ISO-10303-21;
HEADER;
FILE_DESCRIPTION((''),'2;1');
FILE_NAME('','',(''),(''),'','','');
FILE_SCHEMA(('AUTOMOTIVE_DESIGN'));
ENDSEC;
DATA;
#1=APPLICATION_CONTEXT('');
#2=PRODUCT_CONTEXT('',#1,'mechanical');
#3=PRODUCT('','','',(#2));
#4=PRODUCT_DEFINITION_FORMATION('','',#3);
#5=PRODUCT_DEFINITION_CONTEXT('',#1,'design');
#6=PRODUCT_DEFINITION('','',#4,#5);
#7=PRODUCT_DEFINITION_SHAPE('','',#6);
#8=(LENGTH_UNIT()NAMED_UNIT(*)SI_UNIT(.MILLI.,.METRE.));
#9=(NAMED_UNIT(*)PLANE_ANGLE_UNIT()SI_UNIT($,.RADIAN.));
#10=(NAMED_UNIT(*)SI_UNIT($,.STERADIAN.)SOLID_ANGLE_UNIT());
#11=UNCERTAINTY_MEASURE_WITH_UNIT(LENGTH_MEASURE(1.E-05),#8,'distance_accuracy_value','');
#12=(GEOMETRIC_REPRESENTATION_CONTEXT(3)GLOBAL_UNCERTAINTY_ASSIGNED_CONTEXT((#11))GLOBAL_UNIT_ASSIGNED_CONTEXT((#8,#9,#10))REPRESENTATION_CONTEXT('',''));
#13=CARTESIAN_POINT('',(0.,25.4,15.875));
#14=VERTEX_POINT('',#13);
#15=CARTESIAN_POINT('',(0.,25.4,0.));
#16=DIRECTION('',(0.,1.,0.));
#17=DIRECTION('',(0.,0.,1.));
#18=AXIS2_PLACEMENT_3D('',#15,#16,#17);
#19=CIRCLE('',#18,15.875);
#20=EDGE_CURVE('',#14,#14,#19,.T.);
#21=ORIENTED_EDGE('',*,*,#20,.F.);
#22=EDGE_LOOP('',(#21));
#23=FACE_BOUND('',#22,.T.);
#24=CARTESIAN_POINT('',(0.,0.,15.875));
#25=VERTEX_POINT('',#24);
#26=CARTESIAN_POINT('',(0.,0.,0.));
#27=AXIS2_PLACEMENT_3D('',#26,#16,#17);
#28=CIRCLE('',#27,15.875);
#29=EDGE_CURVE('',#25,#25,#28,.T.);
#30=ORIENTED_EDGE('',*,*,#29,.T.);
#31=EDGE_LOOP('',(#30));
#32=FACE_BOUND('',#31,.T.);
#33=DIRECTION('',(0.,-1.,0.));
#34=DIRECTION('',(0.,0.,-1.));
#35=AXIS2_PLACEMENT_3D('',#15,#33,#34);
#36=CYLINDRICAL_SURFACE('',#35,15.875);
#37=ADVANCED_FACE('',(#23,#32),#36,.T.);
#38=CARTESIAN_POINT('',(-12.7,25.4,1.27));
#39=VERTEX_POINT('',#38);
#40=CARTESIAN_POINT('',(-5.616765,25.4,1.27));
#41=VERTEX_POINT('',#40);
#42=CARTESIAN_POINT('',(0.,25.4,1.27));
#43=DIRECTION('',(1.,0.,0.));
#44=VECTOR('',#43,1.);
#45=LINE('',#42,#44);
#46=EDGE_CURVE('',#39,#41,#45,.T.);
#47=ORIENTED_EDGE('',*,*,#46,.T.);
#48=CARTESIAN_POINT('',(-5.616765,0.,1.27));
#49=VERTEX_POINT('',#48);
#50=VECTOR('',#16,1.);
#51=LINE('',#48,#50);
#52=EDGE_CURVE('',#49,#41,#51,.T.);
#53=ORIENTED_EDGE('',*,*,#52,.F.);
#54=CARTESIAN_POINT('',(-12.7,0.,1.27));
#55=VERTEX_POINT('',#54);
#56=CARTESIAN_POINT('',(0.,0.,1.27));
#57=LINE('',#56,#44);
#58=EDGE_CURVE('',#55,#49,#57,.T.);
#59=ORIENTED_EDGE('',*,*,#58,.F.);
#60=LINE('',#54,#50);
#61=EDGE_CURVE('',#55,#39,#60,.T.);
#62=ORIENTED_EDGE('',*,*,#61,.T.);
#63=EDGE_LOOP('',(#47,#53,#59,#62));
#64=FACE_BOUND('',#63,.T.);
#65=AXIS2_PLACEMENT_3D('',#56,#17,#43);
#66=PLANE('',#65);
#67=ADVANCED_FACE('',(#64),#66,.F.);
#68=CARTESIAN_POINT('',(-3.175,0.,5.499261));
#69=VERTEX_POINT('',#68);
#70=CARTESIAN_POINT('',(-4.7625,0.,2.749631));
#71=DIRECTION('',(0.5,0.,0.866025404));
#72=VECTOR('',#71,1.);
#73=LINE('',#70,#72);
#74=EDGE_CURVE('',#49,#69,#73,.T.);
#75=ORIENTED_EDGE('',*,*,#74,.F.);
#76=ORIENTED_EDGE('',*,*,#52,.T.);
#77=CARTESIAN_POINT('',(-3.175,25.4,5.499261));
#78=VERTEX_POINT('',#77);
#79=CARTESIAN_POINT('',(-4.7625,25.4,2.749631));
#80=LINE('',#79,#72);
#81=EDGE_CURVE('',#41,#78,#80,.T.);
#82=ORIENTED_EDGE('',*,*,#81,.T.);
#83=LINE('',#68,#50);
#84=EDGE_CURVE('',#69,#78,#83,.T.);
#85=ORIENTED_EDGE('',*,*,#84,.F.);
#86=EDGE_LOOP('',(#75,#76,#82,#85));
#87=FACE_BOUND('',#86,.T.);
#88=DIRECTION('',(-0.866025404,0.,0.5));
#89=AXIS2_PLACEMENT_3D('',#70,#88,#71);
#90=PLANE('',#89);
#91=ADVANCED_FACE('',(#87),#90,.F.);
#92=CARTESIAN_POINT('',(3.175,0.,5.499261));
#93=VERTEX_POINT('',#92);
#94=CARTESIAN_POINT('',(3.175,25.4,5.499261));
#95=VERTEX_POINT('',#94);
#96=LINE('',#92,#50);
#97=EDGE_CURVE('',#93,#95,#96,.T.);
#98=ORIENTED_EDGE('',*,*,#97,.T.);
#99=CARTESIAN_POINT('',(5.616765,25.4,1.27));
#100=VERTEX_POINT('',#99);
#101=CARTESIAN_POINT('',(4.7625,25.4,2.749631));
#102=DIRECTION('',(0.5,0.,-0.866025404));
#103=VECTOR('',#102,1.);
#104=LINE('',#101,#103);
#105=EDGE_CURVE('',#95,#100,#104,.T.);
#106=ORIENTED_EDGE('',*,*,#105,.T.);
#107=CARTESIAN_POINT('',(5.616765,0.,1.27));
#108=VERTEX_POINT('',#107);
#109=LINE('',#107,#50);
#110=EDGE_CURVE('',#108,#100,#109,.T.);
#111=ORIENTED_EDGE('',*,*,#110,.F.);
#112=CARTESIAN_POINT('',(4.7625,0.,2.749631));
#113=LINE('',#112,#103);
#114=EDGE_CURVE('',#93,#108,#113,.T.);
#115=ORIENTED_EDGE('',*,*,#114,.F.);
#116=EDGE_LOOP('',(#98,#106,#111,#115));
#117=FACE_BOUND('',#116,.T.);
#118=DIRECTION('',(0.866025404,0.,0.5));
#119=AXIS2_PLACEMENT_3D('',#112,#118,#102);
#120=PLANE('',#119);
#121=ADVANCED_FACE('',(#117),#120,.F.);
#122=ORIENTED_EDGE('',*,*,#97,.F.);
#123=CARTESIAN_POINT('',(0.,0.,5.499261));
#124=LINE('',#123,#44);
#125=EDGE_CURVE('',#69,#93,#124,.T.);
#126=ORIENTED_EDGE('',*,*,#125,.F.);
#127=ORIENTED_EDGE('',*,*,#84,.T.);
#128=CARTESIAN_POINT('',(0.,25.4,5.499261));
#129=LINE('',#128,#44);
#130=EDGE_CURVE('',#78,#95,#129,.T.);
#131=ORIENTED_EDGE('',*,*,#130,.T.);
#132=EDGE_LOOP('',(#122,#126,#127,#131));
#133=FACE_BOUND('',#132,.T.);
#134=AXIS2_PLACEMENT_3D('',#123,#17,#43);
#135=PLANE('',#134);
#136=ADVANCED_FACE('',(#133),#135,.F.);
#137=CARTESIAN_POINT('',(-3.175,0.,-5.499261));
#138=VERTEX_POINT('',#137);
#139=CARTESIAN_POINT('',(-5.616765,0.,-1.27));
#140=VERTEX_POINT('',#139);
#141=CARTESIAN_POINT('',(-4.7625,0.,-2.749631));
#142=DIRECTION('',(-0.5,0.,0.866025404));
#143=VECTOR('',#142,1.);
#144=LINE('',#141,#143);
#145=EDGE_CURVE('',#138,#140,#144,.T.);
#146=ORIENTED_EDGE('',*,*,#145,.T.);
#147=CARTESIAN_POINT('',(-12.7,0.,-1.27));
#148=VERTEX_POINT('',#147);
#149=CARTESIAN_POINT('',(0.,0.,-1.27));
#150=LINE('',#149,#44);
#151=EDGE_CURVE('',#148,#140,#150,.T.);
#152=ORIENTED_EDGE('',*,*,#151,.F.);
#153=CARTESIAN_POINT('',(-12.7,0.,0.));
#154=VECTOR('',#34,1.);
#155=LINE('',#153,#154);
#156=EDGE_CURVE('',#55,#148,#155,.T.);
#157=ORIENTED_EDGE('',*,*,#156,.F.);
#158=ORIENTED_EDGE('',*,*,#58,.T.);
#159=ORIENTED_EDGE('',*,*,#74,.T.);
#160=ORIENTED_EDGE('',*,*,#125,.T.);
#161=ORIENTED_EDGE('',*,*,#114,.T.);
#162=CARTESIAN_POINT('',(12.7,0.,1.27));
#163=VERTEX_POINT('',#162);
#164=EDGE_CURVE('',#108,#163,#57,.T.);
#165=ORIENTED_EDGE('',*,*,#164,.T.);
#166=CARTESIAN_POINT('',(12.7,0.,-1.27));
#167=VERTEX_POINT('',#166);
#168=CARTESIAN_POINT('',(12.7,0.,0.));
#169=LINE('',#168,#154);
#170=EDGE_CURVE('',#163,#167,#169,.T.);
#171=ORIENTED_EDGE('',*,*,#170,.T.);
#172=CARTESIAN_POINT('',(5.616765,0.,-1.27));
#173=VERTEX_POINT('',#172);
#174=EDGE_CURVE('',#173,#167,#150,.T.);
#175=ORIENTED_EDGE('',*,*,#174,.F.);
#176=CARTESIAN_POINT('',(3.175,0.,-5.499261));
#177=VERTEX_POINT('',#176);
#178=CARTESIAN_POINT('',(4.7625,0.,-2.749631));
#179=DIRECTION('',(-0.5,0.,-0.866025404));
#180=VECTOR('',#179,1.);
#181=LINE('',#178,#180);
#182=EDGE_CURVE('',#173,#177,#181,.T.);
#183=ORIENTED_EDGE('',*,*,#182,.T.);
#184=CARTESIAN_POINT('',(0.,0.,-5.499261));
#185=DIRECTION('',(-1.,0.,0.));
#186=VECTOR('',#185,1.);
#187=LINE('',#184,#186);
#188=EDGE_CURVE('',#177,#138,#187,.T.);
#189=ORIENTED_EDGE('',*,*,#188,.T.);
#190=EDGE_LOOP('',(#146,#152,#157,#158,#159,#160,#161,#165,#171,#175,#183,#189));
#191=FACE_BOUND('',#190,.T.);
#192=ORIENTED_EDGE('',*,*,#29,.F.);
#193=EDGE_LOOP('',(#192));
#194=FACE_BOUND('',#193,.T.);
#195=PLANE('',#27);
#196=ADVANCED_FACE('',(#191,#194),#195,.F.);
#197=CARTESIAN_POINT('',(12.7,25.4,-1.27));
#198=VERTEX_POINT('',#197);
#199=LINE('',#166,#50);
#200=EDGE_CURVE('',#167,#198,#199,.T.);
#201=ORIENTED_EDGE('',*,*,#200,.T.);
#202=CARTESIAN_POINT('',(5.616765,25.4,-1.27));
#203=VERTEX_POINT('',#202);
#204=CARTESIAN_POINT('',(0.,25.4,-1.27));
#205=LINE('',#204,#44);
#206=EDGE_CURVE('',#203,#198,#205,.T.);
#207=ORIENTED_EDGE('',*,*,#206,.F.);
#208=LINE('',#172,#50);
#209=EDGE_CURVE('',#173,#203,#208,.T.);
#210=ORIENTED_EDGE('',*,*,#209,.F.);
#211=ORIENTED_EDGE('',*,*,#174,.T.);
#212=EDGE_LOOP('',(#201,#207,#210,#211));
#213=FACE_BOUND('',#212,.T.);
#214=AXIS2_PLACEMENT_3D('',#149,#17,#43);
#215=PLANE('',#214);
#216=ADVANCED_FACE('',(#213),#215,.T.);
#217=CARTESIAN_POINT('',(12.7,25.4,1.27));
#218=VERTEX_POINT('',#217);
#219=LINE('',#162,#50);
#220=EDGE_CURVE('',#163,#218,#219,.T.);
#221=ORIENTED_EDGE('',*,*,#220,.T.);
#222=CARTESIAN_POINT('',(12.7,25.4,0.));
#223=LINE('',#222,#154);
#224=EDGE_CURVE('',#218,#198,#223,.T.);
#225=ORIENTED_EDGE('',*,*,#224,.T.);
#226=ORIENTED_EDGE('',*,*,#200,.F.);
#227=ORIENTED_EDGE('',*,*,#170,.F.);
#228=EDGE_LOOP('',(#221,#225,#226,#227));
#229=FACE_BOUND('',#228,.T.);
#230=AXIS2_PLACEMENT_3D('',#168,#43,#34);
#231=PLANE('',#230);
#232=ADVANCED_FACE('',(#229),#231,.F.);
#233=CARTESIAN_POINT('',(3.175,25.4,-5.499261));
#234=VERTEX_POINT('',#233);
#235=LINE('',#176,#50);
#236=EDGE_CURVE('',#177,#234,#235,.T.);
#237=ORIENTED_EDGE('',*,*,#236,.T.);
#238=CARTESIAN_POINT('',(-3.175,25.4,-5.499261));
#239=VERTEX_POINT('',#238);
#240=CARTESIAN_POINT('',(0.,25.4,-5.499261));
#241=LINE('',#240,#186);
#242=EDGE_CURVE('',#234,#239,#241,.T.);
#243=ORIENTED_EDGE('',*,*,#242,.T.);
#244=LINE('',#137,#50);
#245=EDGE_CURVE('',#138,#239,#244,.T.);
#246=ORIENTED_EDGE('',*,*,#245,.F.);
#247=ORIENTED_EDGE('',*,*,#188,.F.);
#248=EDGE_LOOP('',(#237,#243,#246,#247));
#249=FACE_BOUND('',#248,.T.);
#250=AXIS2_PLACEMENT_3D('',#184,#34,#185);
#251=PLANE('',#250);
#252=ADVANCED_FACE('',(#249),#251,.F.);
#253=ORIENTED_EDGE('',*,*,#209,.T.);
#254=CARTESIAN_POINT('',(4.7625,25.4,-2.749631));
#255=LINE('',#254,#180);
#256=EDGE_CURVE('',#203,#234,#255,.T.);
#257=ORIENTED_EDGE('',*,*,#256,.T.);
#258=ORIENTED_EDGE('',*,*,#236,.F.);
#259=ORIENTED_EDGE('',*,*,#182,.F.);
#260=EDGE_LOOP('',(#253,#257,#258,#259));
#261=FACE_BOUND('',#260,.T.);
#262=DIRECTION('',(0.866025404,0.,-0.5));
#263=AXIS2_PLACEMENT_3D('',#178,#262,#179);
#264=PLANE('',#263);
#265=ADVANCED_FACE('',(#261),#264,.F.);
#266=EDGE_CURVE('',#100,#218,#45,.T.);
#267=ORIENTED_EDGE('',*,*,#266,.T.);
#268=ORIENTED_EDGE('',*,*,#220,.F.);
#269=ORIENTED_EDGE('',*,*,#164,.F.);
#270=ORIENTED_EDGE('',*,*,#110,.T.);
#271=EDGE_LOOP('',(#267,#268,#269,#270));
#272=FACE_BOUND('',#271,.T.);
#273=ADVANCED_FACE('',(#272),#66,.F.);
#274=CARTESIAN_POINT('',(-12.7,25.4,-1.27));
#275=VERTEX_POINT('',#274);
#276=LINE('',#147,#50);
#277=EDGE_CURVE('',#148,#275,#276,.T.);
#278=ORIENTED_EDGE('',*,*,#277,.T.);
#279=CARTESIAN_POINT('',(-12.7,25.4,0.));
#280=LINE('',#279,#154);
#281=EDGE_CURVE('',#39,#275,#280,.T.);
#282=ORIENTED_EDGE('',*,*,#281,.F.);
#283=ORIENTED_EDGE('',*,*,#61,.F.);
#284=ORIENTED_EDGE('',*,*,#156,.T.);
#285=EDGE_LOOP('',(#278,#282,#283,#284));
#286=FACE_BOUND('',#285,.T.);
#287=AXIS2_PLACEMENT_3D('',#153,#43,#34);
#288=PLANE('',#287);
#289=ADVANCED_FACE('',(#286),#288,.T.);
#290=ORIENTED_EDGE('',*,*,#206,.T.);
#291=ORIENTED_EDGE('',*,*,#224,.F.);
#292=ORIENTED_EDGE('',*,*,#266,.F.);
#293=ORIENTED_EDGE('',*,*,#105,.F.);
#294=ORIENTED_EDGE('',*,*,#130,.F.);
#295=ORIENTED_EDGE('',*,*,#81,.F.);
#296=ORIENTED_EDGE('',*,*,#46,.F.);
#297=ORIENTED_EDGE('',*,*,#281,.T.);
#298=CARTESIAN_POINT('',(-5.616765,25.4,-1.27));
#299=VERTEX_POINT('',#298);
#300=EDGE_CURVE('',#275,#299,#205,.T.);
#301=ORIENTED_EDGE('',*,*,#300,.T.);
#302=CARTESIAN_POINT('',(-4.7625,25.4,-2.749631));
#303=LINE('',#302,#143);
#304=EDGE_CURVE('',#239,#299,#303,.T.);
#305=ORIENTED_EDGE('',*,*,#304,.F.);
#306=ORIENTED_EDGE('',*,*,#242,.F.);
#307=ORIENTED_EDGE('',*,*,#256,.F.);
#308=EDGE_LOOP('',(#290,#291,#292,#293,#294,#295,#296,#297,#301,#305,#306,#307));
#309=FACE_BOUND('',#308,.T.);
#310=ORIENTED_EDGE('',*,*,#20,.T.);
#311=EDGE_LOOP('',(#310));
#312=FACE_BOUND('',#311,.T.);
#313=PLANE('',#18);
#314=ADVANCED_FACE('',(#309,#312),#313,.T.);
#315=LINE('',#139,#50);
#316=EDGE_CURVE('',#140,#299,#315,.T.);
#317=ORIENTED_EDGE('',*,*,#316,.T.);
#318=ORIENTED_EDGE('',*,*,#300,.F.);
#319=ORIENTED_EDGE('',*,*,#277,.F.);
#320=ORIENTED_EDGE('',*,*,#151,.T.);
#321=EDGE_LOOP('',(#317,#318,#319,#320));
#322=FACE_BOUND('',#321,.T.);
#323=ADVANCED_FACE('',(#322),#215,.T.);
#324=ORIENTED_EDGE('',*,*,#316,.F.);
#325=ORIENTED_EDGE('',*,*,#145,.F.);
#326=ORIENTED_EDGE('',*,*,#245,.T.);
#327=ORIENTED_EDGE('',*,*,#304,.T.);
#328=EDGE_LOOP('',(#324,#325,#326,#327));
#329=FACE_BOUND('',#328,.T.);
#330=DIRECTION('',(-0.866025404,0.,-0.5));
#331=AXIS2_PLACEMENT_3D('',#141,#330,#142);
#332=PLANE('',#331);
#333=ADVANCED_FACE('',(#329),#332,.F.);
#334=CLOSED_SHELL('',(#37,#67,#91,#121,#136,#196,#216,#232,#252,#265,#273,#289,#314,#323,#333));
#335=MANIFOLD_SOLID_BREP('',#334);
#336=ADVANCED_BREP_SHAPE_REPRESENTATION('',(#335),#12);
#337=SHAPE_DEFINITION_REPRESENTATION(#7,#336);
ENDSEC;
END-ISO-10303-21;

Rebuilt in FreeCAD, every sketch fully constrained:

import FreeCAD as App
import Part
import Sketcher
from FreeCAD import Vector
Q = App.Units.Quantity

doc = App.newDocument("Part")
params = doc.addObject("Spreadsheet::Sheet", "Params")
for row, (alias, value) in enumerate([
    ("sketch1_diameter", "1.25 in"),
    ("pad1_length", "1 in"),
    ("sketch2_height", "0.1 in"),
    ("sketch2_width", "0.25 in"),
], start=1):
    params.set(f"A{row}", alias)
    params.set(f"B{row}", "=" + value)
    params.setAlias(f"B{row}", alias)

body = doc.addObject("PartDesign::Body", "Body")

# Sketch on XZ plane
sketch1 = body.newObject("Sketcher::SketchObject", "Sketch")
sketch1.AttachmentSupport = (doc.getObject("XZ_Plane"), [""])
sketch1.MapMode = "FlatFace"
sketch1.addGeometry(Part.Circle(Vector(0, 0, 0), Vector(0, 0, 1), 16), False)
sketch1.addConstraint(Sketcher.Constraint("Coincident", 0, 3, -1, 1))
sketch1.addConstraint(Sketcher.Constraint("Diameter", 0, Q("1.25 in")))
sketch1.setExpression("Constraints[1]", "Params.sketch1_diameter")
pad1 = body.newObject("PartDesign::Pad", "Pad")
pad1.Profile = sketch1
pad1.setExpression("Length", "Params.pad1_length")
pad1.Reversed = True

# Sketch on XZ plane
sketch2 = body.newObject("Sketcher::SketchObject", "Sketch001")
sketch2.AttachmentSupport = (doc.getObject("XZ_Plane"), [""])
sketch2.MapMode = "FlatFace"
sketch2.AttachmentOffset = App.Placement(Vector(0, 0, -1 * 25.4), App.Rotation())
sketch2.addGeometry(Part.LineSegment(Vector(-12.7, -1.3, 0), Vector(-12.7, 1.3, 0)), False)
sketch2.addGeometry(Part.LineSegment(Vector(-12.7, 1.3, 0), Vector(-5.6, 1.3, 0)), False)
sketch2.addGeometry(Part.LineSegment(Vector(-5.6, 1.3, 0), Vector(-3.2, 5.5, 0)), False)
sketch2.addGeometry(Part.LineSegment(Vector(-3.2, 5.5, 0), Vector(3.2, 5.5, 0)), False)
sketch2.addGeometry(Part.LineSegment(Vector(3.2, 5.5, 0), Vector(5.6, 1.3, 0)), False)
sketch2.addGeometry(Part.LineSegment(Vector(5.6, 1.3, 0), Vector(12.7, 1.3, 0)), False)
sketch2.addGeometry(Part.LineSegment(Vector(12.7, 1.3, 0), Vector(12.7, -1.3, 0)), False)
sketch2.addGeometry(Part.LineSegment(Vector(12.7, -1.3, 0), Vector(5.6, -1.3, 0)), False)
sketch2.addGeometry(Part.LineSegment(Vector(5.6, -1.3, 0), Vector(3.2, -5.5, 0)), False)
sketch2.addGeometry(Part.LineSegment(Vector(3.2, -5.5, 0), Vector(-3.2, -5.5, 0)), False)
sketch2.addGeometry(Part.LineSegment(Vector(-3.2, -5.5, 0), Vector(-5.6, -1.3, 0)), False)
sketch2.addGeometry(Part.LineSegment(Vector(-5.6, -1.3, 0), Vector(-12.7, -1.3, 0)), False)
sketch2.addConstraint(Sketcher.Constraint("Coincident", 0, 2, 1, 1))
sketch2.addConstraint(Sketcher.Constraint("Coincident", 1, 2, 2, 1))
sketch2.addConstraint(Sketcher.Constraint("Coincident", 2, 2, 3, 1))
sketch2.addConstraint(Sketcher.Constraint("Coincident", 3, 2, 4, 1))
sketch2.addConstraint(Sketcher.Constraint("Coincident", 4, 2, 5, 1))
sketch2.addConstraint(Sketcher.Constraint("Coincident", 5, 2, 6, 1))
sketch2.addConstraint(Sketcher.Constraint("Coincident", 6, 2, 7, 1))
sketch2.addConstraint(Sketcher.Constraint("Coincident", 7, 2, 8, 1))
sketch2.addConstraint(Sketcher.Constraint("Coincident", 8, 2, 9, 1))
sketch2.addConstraint(Sketcher.Constraint("Coincident", 9, 2, 10, 1))
sketch2.addConstraint(Sketcher.Constraint("Coincident", 10, 2, 11, 1))
sketch2.addConstraint(Sketcher.Constraint("Coincident", 11, 2, 0, 1))
sketch2.addConstraint(Sketcher.Constraint("Vertical", 0))
sketch2.addConstraint(Sketcher.Constraint("Horizontal", 1))
sketch2.addConstraint(Sketcher.Constraint("Horizontal", 3))
sketch2.addConstraint(Sketcher.Constraint("Horizontal", 5))
sketch2.addConstraint(Sketcher.Constraint("Vertical", 6))
sketch2.addConstraint(Sketcher.Constraint("Horizontal", 7))
sketch2.addConstraint(Sketcher.Constraint("Horizontal", 9))
sketch2.addConstraint(Sketcher.Constraint("Horizontal", 11))
sketch2.addConstraint(Sketcher.Constraint("Symmetric", 0, 2, 6, 2, -1, 1))
sketch2.addConstraint(Sketcher.Constraint("Symmetric", 2, 2, 8, 2, -1, 1))
sketch2.addConstraint(Sketcher.Constraint("Symmetric", 4, 2, 10, 2, -1, 1))
sketch2.addConstraint(Sketcher.Constraint("Symmetric", 1, 2, 4, 2, -2))
sketch2.addConstraint(Sketcher.Constraint("Parallel", 2, 8))
sketch2.addConstraint(Sketcher.Constraint("Parallel", 4, 10))
sketch2.addConstraint(Sketcher.Constraint("Vertical", 3, 2, 8, 2))
sketch2.addConstraint(Sketcher.Constraint("DistanceY", 0, 1, 0, 2, Q("0.1 in")))
sketch2.addConstraint(Sketcher.Constraint("Angle", 2, Q("60 deg")))
sketch2.addConstraint(Sketcher.Constraint("DistanceX", 0, 2, 5, 2, Q("1 in")))
sketch2.addConstraint(Sketcher.Constraint("DistanceX", 3, 1, 3, 2, Q("0.25 in")))
sketch2.addConstraint(Sketcher.Constraint("Distance", 2, Q("4.88353 mm")))
sketch2.setExpression("Constraints[27]", "Params.sketch2_height")
sketch2.setExpression("Constraints[30]", "Params.sketch2_width")
pocket1 = body.newObject("PartDesign::Pocket", "Pocket")
pocket1.Profile = sketch2
pocket1.Type = "ThroughAll"
pocket1.Reversed = True

doc.recompute()
